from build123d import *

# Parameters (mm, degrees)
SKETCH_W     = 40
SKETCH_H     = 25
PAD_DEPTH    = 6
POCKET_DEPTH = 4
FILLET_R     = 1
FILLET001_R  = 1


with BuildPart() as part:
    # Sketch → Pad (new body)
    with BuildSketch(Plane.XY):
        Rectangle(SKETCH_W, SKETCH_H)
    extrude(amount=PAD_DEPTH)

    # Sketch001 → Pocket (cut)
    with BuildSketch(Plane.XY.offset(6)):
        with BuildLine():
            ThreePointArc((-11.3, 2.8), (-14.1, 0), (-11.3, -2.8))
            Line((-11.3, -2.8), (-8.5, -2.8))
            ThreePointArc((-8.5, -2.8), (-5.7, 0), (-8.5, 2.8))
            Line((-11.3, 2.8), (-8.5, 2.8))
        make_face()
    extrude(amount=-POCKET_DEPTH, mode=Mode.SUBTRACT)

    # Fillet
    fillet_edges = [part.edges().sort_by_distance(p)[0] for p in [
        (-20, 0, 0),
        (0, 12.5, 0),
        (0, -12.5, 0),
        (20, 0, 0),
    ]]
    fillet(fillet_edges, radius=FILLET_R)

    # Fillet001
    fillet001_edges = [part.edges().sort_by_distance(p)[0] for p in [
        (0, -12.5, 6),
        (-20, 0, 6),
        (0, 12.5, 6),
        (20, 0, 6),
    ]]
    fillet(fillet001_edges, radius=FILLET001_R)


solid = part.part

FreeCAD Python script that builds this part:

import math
import FreeCAD as App
import Part
import Sketcher


def edges_at(feature, points):
    """Names of the edges that pass closest to the given points."""
    edges = feature.Shape.Edges
    near = lambda p: min(range(len(edges)), key=lambda i: edges[i].distToShape(Part.Vertex(*p))[0])
    return sorted({f"Edge{near(p) + 1}" for p in points})


def add_polygon(sketch, points):
    """Adds a closed chain of lines whose ends are joined by coincident constraints."""
    first, n = sketch.GeometryCount, len(points)
    for a, b in zip(points, points[1:] + points[:1]):
        sketch.addGeometry(Part.LineSegment(App.Vector(*a, 0), App.Vector(*b, 0)), False)
    for i in range(n):
        sketch.addConstraint(Sketcher.Constraint("Coincident", first + i, 2, first + (i + 1) % n, 1))

doc = App.newDocument("Part")
body = doc.addObject("PartDesign::Body", "Body")

sketch1 = body.newObject("Sketcher::SketchObject", "Sketch")
sketch1.AttachmentSupport = (doc.getObject("XY_Plane"), [""])
sketch1.MapMode = "FlatFace"
add_polygon(sketch1, [(-20, 12), (-20, -12), (20, -12), (20, 12)])
sketch1.addConstraint(Sketcher.Constraint("Vertical", 0))
sketch1.addConstraint(Sketcher.Constraint("Horizontal", 1))
sketch1.addConstraint(Sketcher.Constraint("Vertical", 2))
sketch1.addConstraint(Sketcher.Constraint("Horizontal", 3))
sketch1.addConstraint(Sketcher.Constraint("Symmetric", 0, 2, 2, 2, -1, 1))
sketch1.addConstraint(Sketcher.Constraint("DistanceX", 1, 1, 1, 2, 40.0))
sketch1.addConstraint(Sketcher.Constraint("DistanceY", 0, 2, 0, 1, 25.0))
pad1 = body.newObject("PartDesign::Pad", "Pad")
pad1.Profile = sketch1
pad1.Length = 6

sketch2 = body.newObject("Sketcher::SketchObject", "Sketch001")
sketch2.AttachmentSupport = (doc.getObject("XY_Plane"), [""])
sketch2.MapMode = "FlatFace"
sketch2.AttachmentOffset = App.Placement(App.Vector(0, 0, 6), App.Rotation())
sketch2.addGeometry(Part.ArcOfCircle(Part.Circle(App.Vector(-11.3, 0, 0), App.Vector(0, 0, 1), 2.8), math.radians(90), math.radians(270)), False)
sketch2.addGeometry(Part.LineSegment(App.Vector(-11.3, -2.8, 0), App.Vector(-8.5, -2.8, 0)), False)
sketch2.addGeometry(Part.ArcOfCircle(Part.Circle(App.Vector(-8.5, 0, 0), App.Vector(0, 0, 1), 2.8), math.radians(-90), math.radians(90)), False)
sketch2.addGeometry(Part.LineSegment(App.Vector(-8.5, 2.8, 0), App.Vector(-11.3, 2.8, 0)), False)
sketch2.addConstraint(Sketcher.Constraint("Tangent", 0, 2, 1, 1))
sketch2.addConstraint(Sketcher.Constraint("Tangent", 1, 2, 2, 1))
sketch2.addConstraint(Sketcher.Constraint("Tangent", 2, 2, 3, 1))
sketch2.addConstraint(Sketcher.Constraint("Tangent", 3, 2, 0, 1))
sketch2.addConstraint(Sketcher.Constraint("Horizontal", 1))
sketch2.addConstraint(Sketcher.Constraint("Horizontal", 3))
sketch2.addConstraint(Sketcher.Constraint("PointOnObject", 0, 3, -1))
sketch2.addConstraint(Sketcher.Constraint("Radius", 0, 2.8))
sketch2.addConstraint(Sketcher.Constraint("DistanceX", 1, 1, 1, 2, 2.8))
sketch2.addConstraint(Sketcher.Constraint("DistanceX", 0, 3, -1, 1, 11.3))
pocket1 = body.newObject("PartDesign::Pocket", "Pocket")
pocket1.Profile = sketch2
pocket1.Length = 4
doc.recompute()

fillet = body.newObject("PartDesign::Fillet", "Fillet")
fillet.Base = (pocket1, edges_at(pocket1, [
    (-20, 0, 0),
    (0, 12.5, 0),
    (0, -12.5, 0),
    (20, 0, 0),
]))
fillet.Radius = 1
doc.recompute()

fillet2 = body.newObject("PartDesign::Fillet", "Fillet001")
fillet2.Base = (fillet, edges_at(fillet, [
    (0, -12.5, 6),
    (-20, 0, 6),
    (0, 12.5, 6),
    (20, 0, 6),
]))
fillet2.Radius = 1

doc.recompute()
